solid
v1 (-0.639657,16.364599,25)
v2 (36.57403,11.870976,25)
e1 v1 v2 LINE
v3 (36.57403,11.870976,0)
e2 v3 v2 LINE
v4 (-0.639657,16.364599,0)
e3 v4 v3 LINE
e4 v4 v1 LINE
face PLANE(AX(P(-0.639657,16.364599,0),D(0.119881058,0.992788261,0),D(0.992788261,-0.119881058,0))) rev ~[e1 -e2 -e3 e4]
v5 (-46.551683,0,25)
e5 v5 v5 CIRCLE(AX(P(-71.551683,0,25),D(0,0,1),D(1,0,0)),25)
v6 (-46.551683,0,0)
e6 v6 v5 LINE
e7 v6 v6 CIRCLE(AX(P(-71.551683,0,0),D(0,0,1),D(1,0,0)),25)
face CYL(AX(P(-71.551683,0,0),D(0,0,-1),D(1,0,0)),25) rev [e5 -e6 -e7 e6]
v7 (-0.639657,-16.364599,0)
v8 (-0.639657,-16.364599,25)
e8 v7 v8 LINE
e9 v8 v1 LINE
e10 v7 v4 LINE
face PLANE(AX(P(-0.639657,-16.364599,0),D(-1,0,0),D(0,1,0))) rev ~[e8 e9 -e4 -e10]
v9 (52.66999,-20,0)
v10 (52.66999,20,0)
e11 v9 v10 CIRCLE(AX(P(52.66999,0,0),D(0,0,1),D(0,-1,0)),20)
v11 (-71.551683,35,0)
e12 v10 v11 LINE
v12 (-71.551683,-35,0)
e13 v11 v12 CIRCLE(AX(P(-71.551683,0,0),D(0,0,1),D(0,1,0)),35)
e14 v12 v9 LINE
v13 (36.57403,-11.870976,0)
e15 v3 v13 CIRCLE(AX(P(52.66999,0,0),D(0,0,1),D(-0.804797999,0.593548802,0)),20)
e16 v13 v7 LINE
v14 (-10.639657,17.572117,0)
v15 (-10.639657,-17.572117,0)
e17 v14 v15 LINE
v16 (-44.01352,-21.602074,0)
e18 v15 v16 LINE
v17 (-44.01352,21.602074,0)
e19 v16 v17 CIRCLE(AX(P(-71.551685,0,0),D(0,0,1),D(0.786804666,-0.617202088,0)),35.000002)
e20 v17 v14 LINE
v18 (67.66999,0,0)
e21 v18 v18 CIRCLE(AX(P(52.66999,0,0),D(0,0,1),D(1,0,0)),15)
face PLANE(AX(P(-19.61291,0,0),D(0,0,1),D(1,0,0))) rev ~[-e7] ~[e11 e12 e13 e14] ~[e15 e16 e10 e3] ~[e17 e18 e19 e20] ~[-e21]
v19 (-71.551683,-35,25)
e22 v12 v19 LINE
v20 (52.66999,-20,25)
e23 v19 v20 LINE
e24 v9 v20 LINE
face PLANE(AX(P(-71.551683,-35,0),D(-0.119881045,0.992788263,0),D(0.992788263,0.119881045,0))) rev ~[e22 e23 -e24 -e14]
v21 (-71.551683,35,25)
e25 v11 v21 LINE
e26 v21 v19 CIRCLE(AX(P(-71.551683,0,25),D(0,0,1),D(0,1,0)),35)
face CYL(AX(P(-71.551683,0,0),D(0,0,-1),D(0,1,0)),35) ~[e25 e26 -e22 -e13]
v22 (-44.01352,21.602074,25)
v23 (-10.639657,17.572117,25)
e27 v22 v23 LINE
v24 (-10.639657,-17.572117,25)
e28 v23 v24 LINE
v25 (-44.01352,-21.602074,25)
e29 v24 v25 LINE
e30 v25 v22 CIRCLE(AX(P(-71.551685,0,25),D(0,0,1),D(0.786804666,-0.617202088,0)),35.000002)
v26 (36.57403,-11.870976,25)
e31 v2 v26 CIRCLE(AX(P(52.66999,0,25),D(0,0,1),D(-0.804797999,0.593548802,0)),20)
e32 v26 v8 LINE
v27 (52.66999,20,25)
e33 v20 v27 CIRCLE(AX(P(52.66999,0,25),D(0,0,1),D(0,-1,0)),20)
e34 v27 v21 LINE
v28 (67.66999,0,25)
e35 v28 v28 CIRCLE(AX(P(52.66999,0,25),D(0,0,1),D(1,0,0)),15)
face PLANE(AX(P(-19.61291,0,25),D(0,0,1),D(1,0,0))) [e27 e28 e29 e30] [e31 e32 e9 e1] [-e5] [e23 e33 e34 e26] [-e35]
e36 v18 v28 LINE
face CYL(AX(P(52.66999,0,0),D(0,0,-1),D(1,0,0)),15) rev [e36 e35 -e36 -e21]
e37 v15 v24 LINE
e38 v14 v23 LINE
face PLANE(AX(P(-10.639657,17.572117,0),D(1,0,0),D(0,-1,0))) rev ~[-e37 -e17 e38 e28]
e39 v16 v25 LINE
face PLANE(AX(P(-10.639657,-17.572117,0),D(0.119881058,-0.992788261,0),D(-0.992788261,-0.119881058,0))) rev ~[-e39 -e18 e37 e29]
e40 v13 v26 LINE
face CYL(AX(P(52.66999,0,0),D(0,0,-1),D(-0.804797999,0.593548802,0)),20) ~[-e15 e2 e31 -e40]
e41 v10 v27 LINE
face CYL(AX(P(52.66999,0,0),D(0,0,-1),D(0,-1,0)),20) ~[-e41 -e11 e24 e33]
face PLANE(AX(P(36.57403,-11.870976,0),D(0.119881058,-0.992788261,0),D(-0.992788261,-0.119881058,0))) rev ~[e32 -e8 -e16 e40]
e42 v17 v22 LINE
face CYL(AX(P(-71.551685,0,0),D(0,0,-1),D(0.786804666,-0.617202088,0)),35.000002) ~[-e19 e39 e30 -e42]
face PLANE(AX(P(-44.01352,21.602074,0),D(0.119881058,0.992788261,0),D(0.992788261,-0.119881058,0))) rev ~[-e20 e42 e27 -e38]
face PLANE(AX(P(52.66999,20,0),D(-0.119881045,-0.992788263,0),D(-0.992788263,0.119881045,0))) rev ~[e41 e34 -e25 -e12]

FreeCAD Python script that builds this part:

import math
import FreeCAD as App
import Part
import Sketcher
from FreeCAD import Vector
Q = App.Units.Quantity

doc = App.newDocument("Part")
body = doc.addObject("PartDesign::Body", "Body")

sketch1 = body.newObject("Sketcher::SketchObject", "Sketch")
sketch1.AttachmentSupport = (doc.getObject("XY_Plane"), [""])
sketch1.MapMode = "FlatFace"
sketch1.addGeometry(Part.LineSegment(Vector(53, 20, 0), Vector(-72, 35, 0)), False)
sketch1.addGeometry(Part.ArcOfCircle(Part.Circle(Vector(-72, 0, 0), Vector(0, 0, 1), 35), math.radians(90), math.radians(270)), False)
sketch1.addGeometry(Part.LineSegment(Vector(-72, -35, 0), Vector(53, -20, 0)), False)
sketch1.addGeometry(Part.ArcOfCircle(Part.Circle(Vector(53, 0, 0), Vector(0, 0, 1), 20), math.radians(-90), math.radians(90)), False)
sketch1.addGeometry(Part.Circle(Vector(-72, 0, 0), Vector(0, 0, 1), 25), False)
sketch1.addGeometry(Part.LineSegment(Vector(-11, -18, 0), Vector(-44, -22, 0)), False)
sketch1.addGeometry(Part.ArcOfCircle(Part.Circle(Vector(-72, 0, 0), Vector(0, 0, 1), 35), math.radians(-38), math.radians(38)), False)
sketch1.addGeometry(Part.LineSegment(Vector(-44, 22, 0), Vector(-11, 18, 0)), False)
sketch1.addGeometry(Part.LineSegment(Vector(-11, 18, 0), Vector(-11, -18, 0)), False)
sketch1.addGeometry(Part.LineSegment(Vector(-1, -16, 0), Vector(-1, 16, 0)), False)
sketch1.addGeometry(Part.LineSegment(Vector(-1, 16, 0), Vector(37, 12, 0)), False)
sketch1.addGeometry(Part.ArcOfCircle(Part.Circle(Vector(53, 0, 0), Vector(0, 0, 1), 20), math.radians(144), math.radians(216)), False)
sketch1.addGeometry(Part.LineSegment(Vector(37, -12, 0), Vector(-1, -16, 0)), False)
sketch1.addGeometry(Part.Circle(Vector(53, 0, 0), Vector(0, 0, 1), 15), False)
sketch1.addConstraint(Sketcher.Constraint("Coincident", 0, 2, 1, 1))
sketch1.addConstraint(Sketcher.Constraint("Coincident", 1, 2, 2, 1))
sketch1.addConstraint(Sketcher.Constraint("Coincident", 2, 2, 3, 1))
sketch1.addConstraint(Sketcher.Constraint("Coincident", 3, 2, 0, 1))
sketch1.addConstraint(Sketcher.Constraint("Coincident", 5, 2, 6, 1))
sketch1.addConstraint(Sketcher.Constraint("Coincident", 6, 2, 7, 1))
sketch1.addConstraint(Sketcher.Constraint("Coincident", 7, 2, 8, 1))
sketch1.addConstraint(Sketcher.Constraint("Coincident", 8, 2, 5, 1))
sketch1.addConstraint(Sketcher.Constraint("Coincident", 9, 2, 10, 1))
sketch1.addConstraint(Sketcher.Constraint("Coincident", 10, 2, 11, 1))
sketch1.addConstraint(Sketcher.Constraint("Coincident", 11, 2, 12, 1))
sketch1.addConstraint(Sketcher.Constraint("Coincident", 12, 2, 9, 1))
sketch1.addConstraint(Sketcher.Constraint("Vertical", 8))
sketch1.addConstraint(Sketcher.Constraint("Vertical", 9))
sketch1.addConstraint(Sketcher.Constraint("Coincident", 4, 3, 1, 3))
sketch1.addConstraint(Sketcher.Constraint("Coincident", 6, 3, 1, 3))
sketch1.addConstraint(Sketcher.Constraint("Coincident", 11, 3, 3, 3))
sketch1.addConstraint(Sketcher.Constraint("Coincident", 13, 3, 3, 3))
sketch1.addConstraint(Sketcher.Constraint("Equal", 1, 6))
sketch1.addConstraint(Sketcher.Constraint("Equal", 3, 11))
sketch1.addConstraint(Sketcher.Constraint("Symmetric", 0, 2, 1, 2, -1))
sketch1.addConstraint(Sketcher.Constraint("Symmetric", 2, 2, 3, 2, -1))
sketch1.addConstraint(Sketcher.Constraint("Parallel", 2, 5))
sketch1.addConstraint(Sketcher.Constraint("Parallel", 0, 7))
sketch1.addConstraint(Sketcher.Constraint("Parallel", 7, 10))
sketch1.addConstraint(Sketcher.Constraint("Parallel", 5, 12))
sketch1.addConstraint(Sketcher.Constraint("Vertical", 6, 3, 0, 2))
sketch1.addConstraint(Sketcher.Constraint("Vertical", 13, 3, 2, 2))
sketch1.addConstraint(Sketcher.Constraint("Vertical", 5, 2, 6, 2))
sketch1.addConstraint(Sketcher.Constraint("Vertical", 10, 2, 11, 2))
sketch1.addConstraint(Sketcher.Constraint("Diameter", 4, Q("50 mm")))
sketch1.addConstraint(Sketcher.Constraint("Diameter", 13, Q("30 mm")))
sketch1.addConstraint(Sketcher.Constraint("Radius", 1, Q("35 mm")))
sketch1.addConstraint(Sketcher.Constraint("Radius", 3, Q("20 mm")))
sketch1.addConstraint(Sketcher.Constraint("DistanceX", 7, 2, 9, 2, Q("10 mm")))
sketch1.addConstraint(Sketcher.Constraint("DistanceY", -1, 1, 9, 2, Q("16.364599 mm")))
sketch1.addConstraint(Sketcher.Constraint("Distance", 10, Q("37.484012 mm")))
sketch1.addConstraint(Sketcher.Constraint("DistanceY", 8, 2, 8, 1, Q("35.144234 mm")))
sketch1.addConstraint(Sketcher.Constraint("DistanceX", -1, 1, 3, 3, Q("52.66999 mm")))
sketch1.addConstraint(Sketcher.Constraint("DistanceX", 5, 2, -1, 1, Q("44.01352 mm")))
pad1 = body.newObject("PartDesign::Pad", "Pad")
pad1.Profile = sketch1
pad1.Length = 25

doc.recompute()
